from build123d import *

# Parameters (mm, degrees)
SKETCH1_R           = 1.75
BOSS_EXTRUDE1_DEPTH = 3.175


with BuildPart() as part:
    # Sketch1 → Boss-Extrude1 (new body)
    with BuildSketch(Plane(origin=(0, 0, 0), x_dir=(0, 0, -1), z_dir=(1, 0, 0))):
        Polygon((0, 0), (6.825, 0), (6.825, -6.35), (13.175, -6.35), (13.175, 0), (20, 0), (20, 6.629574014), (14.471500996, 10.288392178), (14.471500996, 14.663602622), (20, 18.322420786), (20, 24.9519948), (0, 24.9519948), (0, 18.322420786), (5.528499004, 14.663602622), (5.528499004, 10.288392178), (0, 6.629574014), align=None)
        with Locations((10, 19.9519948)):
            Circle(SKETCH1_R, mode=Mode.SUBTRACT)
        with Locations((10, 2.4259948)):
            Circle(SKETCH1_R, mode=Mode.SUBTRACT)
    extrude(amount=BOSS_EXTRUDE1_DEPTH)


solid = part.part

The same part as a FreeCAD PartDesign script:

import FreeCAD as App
import Part
import Sketcher

V = App.Vector
Q = App.Units.Quantity


def add_polygon(sketch, points):
    """Adds a closed chain of lines whose ends are joined by coincident constraints."""
    first, n = sketch.GeometryCount, len(points)
    for a, b in zip(points, points[1:] + points[:1]):
        sketch.addGeometry(Part.LineSegment(App.Vector(*a, 0), App.Vector(*b, 0)), False)
    for i in range(n):
        sketch.addConstraint(Sketcher.Constraint("Coincident", first + i, 2, first + (i + 1) % n, 1))

doc = App.newDocument("Part")
body = doc.addObject("PartDesign::Body", "Body")

sketch1 = body.newObject("Sketcher::SketchObject", "Sketch")
sketch1.AttachmentSupport = (doc.getObject("YZ_Plane"), [""])
sketch1.MapMode = "FlatFace"
add_polygon(sketch1, [(0, 0), (0, -6.825), (-6.35, -6.825), (-6.35, -13.175), (0, -13.175), (0, -20), (6.629574, -20), (10.288392, -14.471501), (14.663603, -14.471501), (18.322421, -20), (24.951995, -20), (24.951995, 0), (18.322421, 0), (14.663603, -5.528499), (10.288392, -5.528499), (6.629574, 0)])
sketch1.addGeometry(Part.Circle(V(2.425995, -10, 0), V(0, 0, 1), 1.75), False)
sketch1.addGeometry(Part.Circle(V(19.951995, -10, 0), V(0, 0, 1), 1.75), False)
sketch1.addConstraint([
    Sketcher.Constraint("Vertical", 0),
    Sketcher.Constraint("Horizontal", 1),
    Sketcher.Constraint("Vertical", 2),
    Sketcher.Constraint("Horizontal", 3),
    Sketcher.Constraint("Vertical", 4),
    Sketcher.Constraint("Horizontal", 5),
    Sketcher.Constraint("Horizontal", 7),
    Sketcher.Constraint("Horizontal", 9),
    Sketcher.Constraint("Vertical", 10),
    Sketcher.Constraint("Horizontal", 11),
    Sketcher.Constraint("Horizontal", 13),
    Sketcher.Constraint("Horizontal", 15),
    Sketcher.Constraint("Coincident", 15, 2, -1, 1),
    Sketcher.Constraint("Equal", 16, 17),
    Sketcher.Constraint("PointOnObject", 3, 2, -2),
    Sketcher.Constraint("PointOnObject", 10, 2, -1),
    Sketcher.Constraint("Parallel", 6, 12),
    Sketcher.Constraint("Parallel", 8, 14),
    Sketcher.Constraint("Horizontal", 16, 3, 17, 3),
    Sketcher.Constraint("Horizontal", 5, 2, 8, 2),
    Sketcher.Constraint("Vertical", 8, 2, 11, 2),
    Sketcher.Constraint("Vertical", 7, 2, 12, 2),
    Sketcher.Constraint("Vertical", 6, 2, 13, 2),
    Sketcher.Constraint("Vertical", 5, 2, 14, 2),
    Sketcher.Constraint("Equal", 5, 9),
    Sketcher.Constraint("Equal", 3, 2),
    Sketcher.Constraint("Equal", 0, 4),
    Sketcher.Constraint("Diameter", 16, Q("3.5 mm")),
    Sketcher.Constraint("DistanceY", 10, 1, 10, 2, Q("20 mm")),
    Sketcher.Constraint("DistanceY", 16, 3, -1, 1, Q("10 mm")),
    Sketcher.Constraint("DistanceX", 17, 3, 9, 2, Q("5 mm")),
    Sketcher.Constraint("DistanceX", 1, 2, 1, 1, Q("6.35 mm")),
    Sketcher.Constraint("DistanceX", 16, 3, 17, 3, Q("17.526 mm")),
    Sketcher.Constraint("DistanceY", 7, 2, 12, 2, Q("8.943002 mm")),
    Sketcher.Constraint("DistanceX", 7, 1, 7, 2, Q("4.37521 mm")),
    Sketcher.Constraint("DistanceX", 5, 1, 5, 2, Q("6.629574 mm")),
    Sketcher.Constraint("DistanceX", -1, 1, 8, 2, Q("18.322421 mm")),
])
pad1 = body.newObject("PartDesign::Pad", "Pad")
pad1.Profile = sketch1
pad1.Length = 3.175

doc.recompute()
